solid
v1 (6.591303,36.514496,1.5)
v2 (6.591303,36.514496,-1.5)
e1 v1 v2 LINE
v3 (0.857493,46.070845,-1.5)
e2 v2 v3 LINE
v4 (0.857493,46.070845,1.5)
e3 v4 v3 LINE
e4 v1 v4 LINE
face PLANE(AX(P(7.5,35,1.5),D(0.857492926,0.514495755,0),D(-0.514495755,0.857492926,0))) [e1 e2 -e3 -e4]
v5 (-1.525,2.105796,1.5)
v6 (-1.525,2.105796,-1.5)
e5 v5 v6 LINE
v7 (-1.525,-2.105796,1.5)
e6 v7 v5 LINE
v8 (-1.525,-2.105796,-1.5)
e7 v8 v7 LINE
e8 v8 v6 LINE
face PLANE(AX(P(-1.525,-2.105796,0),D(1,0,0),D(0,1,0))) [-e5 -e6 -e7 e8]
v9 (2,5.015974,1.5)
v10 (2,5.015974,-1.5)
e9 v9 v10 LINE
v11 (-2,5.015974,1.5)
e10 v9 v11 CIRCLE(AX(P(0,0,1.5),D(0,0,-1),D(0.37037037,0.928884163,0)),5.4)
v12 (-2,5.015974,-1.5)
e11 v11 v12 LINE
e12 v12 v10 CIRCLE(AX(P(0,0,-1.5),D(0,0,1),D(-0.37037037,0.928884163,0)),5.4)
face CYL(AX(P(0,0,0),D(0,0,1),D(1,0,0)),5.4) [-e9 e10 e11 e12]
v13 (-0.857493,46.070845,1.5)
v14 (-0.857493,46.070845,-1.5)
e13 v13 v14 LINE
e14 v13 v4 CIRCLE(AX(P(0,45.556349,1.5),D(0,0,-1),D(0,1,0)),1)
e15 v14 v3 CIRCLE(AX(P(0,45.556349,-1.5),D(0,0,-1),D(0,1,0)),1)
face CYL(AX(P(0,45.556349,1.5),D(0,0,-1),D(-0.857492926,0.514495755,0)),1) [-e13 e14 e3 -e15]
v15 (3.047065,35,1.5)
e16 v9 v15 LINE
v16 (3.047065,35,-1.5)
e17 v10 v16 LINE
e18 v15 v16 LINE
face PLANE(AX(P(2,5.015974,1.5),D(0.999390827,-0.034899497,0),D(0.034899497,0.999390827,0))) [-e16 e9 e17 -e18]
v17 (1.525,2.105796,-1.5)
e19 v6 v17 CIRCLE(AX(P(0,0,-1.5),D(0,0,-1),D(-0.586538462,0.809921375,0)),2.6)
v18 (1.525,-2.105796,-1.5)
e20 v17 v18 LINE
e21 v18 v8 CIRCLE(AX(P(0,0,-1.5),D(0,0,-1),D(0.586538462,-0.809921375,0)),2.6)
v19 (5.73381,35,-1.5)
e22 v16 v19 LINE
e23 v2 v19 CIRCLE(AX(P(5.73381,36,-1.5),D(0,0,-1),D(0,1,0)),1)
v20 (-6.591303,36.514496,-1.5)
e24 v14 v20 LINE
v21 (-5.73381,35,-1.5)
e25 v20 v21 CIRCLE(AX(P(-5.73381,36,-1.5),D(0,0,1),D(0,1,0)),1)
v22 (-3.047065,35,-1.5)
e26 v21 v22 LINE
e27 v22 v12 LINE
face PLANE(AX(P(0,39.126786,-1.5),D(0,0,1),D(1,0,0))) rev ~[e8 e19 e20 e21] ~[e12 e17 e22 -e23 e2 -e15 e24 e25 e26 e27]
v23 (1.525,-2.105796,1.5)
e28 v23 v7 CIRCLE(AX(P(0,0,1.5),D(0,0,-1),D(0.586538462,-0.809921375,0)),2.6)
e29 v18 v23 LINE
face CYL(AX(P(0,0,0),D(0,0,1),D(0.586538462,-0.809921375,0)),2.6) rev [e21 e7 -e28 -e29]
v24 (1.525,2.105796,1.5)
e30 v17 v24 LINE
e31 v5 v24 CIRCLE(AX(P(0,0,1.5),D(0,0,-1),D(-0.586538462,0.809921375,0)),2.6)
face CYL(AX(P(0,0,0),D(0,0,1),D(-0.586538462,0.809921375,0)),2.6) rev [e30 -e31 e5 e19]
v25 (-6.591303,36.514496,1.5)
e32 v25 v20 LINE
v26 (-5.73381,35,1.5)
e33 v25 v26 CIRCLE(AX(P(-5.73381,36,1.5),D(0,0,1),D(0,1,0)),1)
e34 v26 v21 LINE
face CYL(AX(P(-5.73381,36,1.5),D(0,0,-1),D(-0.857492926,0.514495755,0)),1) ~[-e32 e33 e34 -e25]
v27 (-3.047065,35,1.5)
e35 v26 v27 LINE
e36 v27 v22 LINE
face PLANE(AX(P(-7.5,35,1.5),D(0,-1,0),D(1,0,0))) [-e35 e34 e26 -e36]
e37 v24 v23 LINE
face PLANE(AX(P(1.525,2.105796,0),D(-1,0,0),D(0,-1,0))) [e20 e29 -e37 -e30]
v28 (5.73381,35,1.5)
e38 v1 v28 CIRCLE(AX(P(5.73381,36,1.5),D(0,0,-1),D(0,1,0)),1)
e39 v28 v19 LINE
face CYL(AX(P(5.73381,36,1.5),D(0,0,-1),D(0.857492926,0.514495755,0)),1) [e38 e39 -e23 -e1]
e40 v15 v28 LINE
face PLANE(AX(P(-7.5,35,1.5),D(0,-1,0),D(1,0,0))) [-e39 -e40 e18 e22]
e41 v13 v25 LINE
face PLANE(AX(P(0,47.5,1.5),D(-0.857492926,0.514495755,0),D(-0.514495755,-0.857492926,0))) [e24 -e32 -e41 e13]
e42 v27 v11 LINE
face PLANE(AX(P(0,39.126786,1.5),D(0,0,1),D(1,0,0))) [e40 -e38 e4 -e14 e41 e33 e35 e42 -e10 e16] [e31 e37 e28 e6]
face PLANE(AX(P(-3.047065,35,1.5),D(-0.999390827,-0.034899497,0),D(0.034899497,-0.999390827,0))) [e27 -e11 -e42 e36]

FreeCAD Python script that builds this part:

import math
import FreeCAD as App
import Part
import Sketcher
Q = App.Units.Quantity


def edges_at(feature, points):
    """Names of the edges that pass closest to the given points."""
    edges = feature.Shape.Edges
    near = lambda p: min(range(len(edges)), key=lambda i: edges[i].distToShape(Part.Vertex(*p))[0])
    return sorted({f"Edge{near(p) + 1}" for p in points})


def add_polygon(sketch, points):
    """Adds a closed chain of lines whose ends are joined by coincident constraints."""
    first, n = sketch.GeometryCount, len(points)
    for a, b in zip(points, points[1:] + points[:1]):
        sketch.addGeometry(Part.LineSegment(App.Vector(*a, 0), App.Vector(*b, 0)), False)
    for i in range(n):
        sketch.addConstraint(Sketcher.Constraint("Coincident", first + i, 2, first + (i + 1) % n, 1))

doc = App.newDocument("Part")
params = doc.addObject("Spreadsheet::Sheet", "Params")
for row, (alias, value) in enumerate([
    ("sketch1_diameter", "10.8 mm"),
    ("sketch1_radius", "2.6 mm"),
    ("pad1_length", "3 mm"),
    ("sketch2_radius", "5.4 mm"),
    ("pad2_length", "3 mm"),
    ("sketch3_width", "15 mm"),
    ("pad3_length", "3 mm"),
    ("fillet_radius", "1 mm"),
], start=1):
    params.set(f"A{row}", alias)
    params.set(f"B{row}", "=" + value)
    params.setAlias(f"B{row}", alias)

body = doc.addObject("PartDesign::Body", "Body")

# Sketch on XY plane
sketch1 = body.newObject("Sketcher::SketchObject", "Sketch")
sketch1.AttachmentSupport = (doc.getObject("XY_Plane"), [""])
sketch1.MapMode = "FlatFace"
sketch1.addGeometry(Part.Circle(App.Vector(0, 0, 0), App.Vector(0, 0, 1), 5.4), False)
sketch1.addGeometry(Part.ArcOfCircle(Part.Circle(App.Vector(0, 0, 0), App.Vector(0, 0, 1), 2.6), math.radians(54), math.radians(126)), False)
sketch1.addGeometry(Part.LineSegment(App.Vector(1.5, 2.1, 0), App.Vector(1.5, -2.1, 0)), False)
sketch1.addGeometry(Part.ArcOfCircle(Part.Circle(App.Vector(0, 0, 0), App.Vector(0, 0, 1), 2.6), math.radians(-126), math.radians(-54)), False)
sketch1.addGeometry(Part.LineSegment(App.Vector(-1.5, -2.1, 0), App.Vector(-1.5, 2.1, 0)), False)
sketch1.addConstraint(Sketcher.Constraint("Coincident", 1, 1, 2, 1))
sketch1.addConstraint(Sketcher.Constraint("Coincident", 2, 2, 3, 2))
sketch1.addConstraint(Sketcher.Constraint("Coincident", 3, 1, 4, 1))
sketch1.addConstraint(Sketcher.Constraint("Coincident", 4, 2, 1, 2))
sketch1.addConstraint(Sketcher.Constraint("Vertical", 2))
sketch1.addConstraint(Sketcher.Constraint("Vertical", 4))
sketch1.addConstraint(Sketcher.Constraint("Coincident", 0, 3, -1, 1))
sketch1.addConstraint(Sketcher.Constraint("Coincident", 1, 3, -1, 1))
sketch1.addConstraint(Sketcher.Constraint("Coincident", 3, 3, -1, 1))
sketch1.addConstraint(Sketcher.Constraint("Equal", 1, 3))
sketch1.addConstraint(Sketcher.Constraint("Horizontal", 2, 2, 3, 1))
sketch1.addConstraint(Sketcher.Constraint("Diameter", 0, Q("10.8 mm")))
sketch1.addConstraint(Sketcher.Constraint("Radius", 1, Q("2.6 mm")))
sketch1.addConstraint(Sketcher.Constraint("DistanceX", 3, 1, 2, 2, Q("3.05 mm")))
sketch1.setExpression("Constraints[11]", "Params.sketch1_diameter")
sketch1.setExpression("Constraints[12]", "Params.sketch1_radius")
pad1 = body.newObject("PartDesign::Pad", "Pad")
pad1.Profile = sketch1
pad1.setExpression("Length", "Params.pad1_length")
pad1.Midplane = True

# Sketch on XY plane
sketch2 = body.newObject("Sketcher::SketchObject", "Sketch001")
sketch2.AttachmentSupport = (doc.getObject("XY_Plane"), [""])
sketch2.MapMode = "FlatFace"
sketch2.AttachmentOffset = App.Placement(App.Vector(0, 0, 1.5), App.Rotation())
sketch2.addGeometry(Part.ArcOfCircle(Part.Circle(App.Vector(0, 0, 0), App.Vector(0, 0, 1), 5.4), math.radians(68), math.radians(112)), False)
sketch2.addGeometry(Part.LineSegment(App.Vector(2, 5, 0), App.Vector(3, 35, 0)), False)
sketch2.addGeometry(Part.LineSegment(App.Vector(3, 35, 0), App.Vector(-3, 35, 0)), False)
sketch2.addGeometry(Part.LineSegment(App.Vector(-3, 35, 0), App.Vector(-2, 5, 0)), False)
sketch2.addConstraint(Sketcher.Constraint("Coincident", 0, 1, 1, 1))
sketch2.addConstraint(Sketcher.Constraint("Coincident", 1, 2, 2, 1))
sketch2.addConstraint(Sketcher.Constraint("Coincident", 2, 2, 3, 1))
sketch2.addConstraint(Sketcher.Constraint("Coincident", 3, 2, 0, 2))
sketch2.addConstraint(Sketcher.Constraint("Horizontal", 2))
sketch2.addConstraint(Sketcher.Constraint("Coincident", 0, 3, -1, 1))
sketch2.addConstraint(Sketcher.Constraint("Horizontal", 0, 1, 3, 2))
sketch2.addConstraint(Sketcher.Constraint("Equal", 1, 3))
sketch2.addConstraint(Sketcher.Constraint("Radius", 0, Q("5.4 mm")))
sketch2.addConstraint(Sketcher.Constraint("Angle", 1, Q("88 deg")))
sketch2.addConstraint(Sketcher.Constraint("DistanceX", -1, 1, 0, 1, Q("2 mm")))
sketch2.addConstraint(Sketcher.Constraint("DistanceY", -1, 1, 1, 2, Q("35 mm")))
sketch2.setExpression("Constraints[8]", "Params.sketch2_radius")
pad2 = body.newObject("PartDesign::Pad", "Pad001")
pad2.Profile = sketch2
pad2.setExpression("Length", "Params.pad2_length")
pad2.Reversed = True

# Sketch on XY plane
sketch3 = body.newObject("Sketcher::SketchObject", "Sketch002")
sketch3.AttachmentSupport = (doc.getObject("XY_Plane"), [""])
sketch3.MapMode = "FlatFace"
sketch3.AttachmentOffset = App.Placement(App.Vector(0, 0, 1.5), App.Rotation())
add_polygon(sketch3, [(0, 48), (-8, 35), (8, 35)])  # lines 0-2
sketch3.addConstraint(Sketcher.Constraint("Horizontal", 1))
sketch3.addConstraint(Sketcher.Constraint("PointOnObject", 2, 2, -2))
sketch3.addConstraint(Sketcher.Constraint("Equal", 0, 2))
sketch3.addConstraint(Sketcher.Constraint("DistanceX", 1, 1, 1, 2, Q("15 mm")))
sketch3.addConstraint(Sketcher.Constraint("DistanceY", -1, 1, 0, 2, Q("35 mm")))
sketch3.addConstraint(Sketcher.Constraint("DistanceY", -1, 1, 2, 2, Q("47.5 mm")))
sketch3.setExpression("Constraints[6]", "Params.sketch3_width")
pad3 = body.newObject("PartDesign::Pad", "Pad002")
pad3.Profile = sketch3
pad3.setExpression("Length", "Params.pad3_length")
pad3.Reversed = True
doc.recompute()

fillet = body.newObject("PartDesign::Fillet", "Fillet")
fillet.Base = (pad3, edges_at(pad3, [(-7.5, 35, 0), (0, 47.5, 0), (7.5, 35, 0)]))
fillet.setExpression("Radius", "Params.fillet_radius")

doc.recompute()
